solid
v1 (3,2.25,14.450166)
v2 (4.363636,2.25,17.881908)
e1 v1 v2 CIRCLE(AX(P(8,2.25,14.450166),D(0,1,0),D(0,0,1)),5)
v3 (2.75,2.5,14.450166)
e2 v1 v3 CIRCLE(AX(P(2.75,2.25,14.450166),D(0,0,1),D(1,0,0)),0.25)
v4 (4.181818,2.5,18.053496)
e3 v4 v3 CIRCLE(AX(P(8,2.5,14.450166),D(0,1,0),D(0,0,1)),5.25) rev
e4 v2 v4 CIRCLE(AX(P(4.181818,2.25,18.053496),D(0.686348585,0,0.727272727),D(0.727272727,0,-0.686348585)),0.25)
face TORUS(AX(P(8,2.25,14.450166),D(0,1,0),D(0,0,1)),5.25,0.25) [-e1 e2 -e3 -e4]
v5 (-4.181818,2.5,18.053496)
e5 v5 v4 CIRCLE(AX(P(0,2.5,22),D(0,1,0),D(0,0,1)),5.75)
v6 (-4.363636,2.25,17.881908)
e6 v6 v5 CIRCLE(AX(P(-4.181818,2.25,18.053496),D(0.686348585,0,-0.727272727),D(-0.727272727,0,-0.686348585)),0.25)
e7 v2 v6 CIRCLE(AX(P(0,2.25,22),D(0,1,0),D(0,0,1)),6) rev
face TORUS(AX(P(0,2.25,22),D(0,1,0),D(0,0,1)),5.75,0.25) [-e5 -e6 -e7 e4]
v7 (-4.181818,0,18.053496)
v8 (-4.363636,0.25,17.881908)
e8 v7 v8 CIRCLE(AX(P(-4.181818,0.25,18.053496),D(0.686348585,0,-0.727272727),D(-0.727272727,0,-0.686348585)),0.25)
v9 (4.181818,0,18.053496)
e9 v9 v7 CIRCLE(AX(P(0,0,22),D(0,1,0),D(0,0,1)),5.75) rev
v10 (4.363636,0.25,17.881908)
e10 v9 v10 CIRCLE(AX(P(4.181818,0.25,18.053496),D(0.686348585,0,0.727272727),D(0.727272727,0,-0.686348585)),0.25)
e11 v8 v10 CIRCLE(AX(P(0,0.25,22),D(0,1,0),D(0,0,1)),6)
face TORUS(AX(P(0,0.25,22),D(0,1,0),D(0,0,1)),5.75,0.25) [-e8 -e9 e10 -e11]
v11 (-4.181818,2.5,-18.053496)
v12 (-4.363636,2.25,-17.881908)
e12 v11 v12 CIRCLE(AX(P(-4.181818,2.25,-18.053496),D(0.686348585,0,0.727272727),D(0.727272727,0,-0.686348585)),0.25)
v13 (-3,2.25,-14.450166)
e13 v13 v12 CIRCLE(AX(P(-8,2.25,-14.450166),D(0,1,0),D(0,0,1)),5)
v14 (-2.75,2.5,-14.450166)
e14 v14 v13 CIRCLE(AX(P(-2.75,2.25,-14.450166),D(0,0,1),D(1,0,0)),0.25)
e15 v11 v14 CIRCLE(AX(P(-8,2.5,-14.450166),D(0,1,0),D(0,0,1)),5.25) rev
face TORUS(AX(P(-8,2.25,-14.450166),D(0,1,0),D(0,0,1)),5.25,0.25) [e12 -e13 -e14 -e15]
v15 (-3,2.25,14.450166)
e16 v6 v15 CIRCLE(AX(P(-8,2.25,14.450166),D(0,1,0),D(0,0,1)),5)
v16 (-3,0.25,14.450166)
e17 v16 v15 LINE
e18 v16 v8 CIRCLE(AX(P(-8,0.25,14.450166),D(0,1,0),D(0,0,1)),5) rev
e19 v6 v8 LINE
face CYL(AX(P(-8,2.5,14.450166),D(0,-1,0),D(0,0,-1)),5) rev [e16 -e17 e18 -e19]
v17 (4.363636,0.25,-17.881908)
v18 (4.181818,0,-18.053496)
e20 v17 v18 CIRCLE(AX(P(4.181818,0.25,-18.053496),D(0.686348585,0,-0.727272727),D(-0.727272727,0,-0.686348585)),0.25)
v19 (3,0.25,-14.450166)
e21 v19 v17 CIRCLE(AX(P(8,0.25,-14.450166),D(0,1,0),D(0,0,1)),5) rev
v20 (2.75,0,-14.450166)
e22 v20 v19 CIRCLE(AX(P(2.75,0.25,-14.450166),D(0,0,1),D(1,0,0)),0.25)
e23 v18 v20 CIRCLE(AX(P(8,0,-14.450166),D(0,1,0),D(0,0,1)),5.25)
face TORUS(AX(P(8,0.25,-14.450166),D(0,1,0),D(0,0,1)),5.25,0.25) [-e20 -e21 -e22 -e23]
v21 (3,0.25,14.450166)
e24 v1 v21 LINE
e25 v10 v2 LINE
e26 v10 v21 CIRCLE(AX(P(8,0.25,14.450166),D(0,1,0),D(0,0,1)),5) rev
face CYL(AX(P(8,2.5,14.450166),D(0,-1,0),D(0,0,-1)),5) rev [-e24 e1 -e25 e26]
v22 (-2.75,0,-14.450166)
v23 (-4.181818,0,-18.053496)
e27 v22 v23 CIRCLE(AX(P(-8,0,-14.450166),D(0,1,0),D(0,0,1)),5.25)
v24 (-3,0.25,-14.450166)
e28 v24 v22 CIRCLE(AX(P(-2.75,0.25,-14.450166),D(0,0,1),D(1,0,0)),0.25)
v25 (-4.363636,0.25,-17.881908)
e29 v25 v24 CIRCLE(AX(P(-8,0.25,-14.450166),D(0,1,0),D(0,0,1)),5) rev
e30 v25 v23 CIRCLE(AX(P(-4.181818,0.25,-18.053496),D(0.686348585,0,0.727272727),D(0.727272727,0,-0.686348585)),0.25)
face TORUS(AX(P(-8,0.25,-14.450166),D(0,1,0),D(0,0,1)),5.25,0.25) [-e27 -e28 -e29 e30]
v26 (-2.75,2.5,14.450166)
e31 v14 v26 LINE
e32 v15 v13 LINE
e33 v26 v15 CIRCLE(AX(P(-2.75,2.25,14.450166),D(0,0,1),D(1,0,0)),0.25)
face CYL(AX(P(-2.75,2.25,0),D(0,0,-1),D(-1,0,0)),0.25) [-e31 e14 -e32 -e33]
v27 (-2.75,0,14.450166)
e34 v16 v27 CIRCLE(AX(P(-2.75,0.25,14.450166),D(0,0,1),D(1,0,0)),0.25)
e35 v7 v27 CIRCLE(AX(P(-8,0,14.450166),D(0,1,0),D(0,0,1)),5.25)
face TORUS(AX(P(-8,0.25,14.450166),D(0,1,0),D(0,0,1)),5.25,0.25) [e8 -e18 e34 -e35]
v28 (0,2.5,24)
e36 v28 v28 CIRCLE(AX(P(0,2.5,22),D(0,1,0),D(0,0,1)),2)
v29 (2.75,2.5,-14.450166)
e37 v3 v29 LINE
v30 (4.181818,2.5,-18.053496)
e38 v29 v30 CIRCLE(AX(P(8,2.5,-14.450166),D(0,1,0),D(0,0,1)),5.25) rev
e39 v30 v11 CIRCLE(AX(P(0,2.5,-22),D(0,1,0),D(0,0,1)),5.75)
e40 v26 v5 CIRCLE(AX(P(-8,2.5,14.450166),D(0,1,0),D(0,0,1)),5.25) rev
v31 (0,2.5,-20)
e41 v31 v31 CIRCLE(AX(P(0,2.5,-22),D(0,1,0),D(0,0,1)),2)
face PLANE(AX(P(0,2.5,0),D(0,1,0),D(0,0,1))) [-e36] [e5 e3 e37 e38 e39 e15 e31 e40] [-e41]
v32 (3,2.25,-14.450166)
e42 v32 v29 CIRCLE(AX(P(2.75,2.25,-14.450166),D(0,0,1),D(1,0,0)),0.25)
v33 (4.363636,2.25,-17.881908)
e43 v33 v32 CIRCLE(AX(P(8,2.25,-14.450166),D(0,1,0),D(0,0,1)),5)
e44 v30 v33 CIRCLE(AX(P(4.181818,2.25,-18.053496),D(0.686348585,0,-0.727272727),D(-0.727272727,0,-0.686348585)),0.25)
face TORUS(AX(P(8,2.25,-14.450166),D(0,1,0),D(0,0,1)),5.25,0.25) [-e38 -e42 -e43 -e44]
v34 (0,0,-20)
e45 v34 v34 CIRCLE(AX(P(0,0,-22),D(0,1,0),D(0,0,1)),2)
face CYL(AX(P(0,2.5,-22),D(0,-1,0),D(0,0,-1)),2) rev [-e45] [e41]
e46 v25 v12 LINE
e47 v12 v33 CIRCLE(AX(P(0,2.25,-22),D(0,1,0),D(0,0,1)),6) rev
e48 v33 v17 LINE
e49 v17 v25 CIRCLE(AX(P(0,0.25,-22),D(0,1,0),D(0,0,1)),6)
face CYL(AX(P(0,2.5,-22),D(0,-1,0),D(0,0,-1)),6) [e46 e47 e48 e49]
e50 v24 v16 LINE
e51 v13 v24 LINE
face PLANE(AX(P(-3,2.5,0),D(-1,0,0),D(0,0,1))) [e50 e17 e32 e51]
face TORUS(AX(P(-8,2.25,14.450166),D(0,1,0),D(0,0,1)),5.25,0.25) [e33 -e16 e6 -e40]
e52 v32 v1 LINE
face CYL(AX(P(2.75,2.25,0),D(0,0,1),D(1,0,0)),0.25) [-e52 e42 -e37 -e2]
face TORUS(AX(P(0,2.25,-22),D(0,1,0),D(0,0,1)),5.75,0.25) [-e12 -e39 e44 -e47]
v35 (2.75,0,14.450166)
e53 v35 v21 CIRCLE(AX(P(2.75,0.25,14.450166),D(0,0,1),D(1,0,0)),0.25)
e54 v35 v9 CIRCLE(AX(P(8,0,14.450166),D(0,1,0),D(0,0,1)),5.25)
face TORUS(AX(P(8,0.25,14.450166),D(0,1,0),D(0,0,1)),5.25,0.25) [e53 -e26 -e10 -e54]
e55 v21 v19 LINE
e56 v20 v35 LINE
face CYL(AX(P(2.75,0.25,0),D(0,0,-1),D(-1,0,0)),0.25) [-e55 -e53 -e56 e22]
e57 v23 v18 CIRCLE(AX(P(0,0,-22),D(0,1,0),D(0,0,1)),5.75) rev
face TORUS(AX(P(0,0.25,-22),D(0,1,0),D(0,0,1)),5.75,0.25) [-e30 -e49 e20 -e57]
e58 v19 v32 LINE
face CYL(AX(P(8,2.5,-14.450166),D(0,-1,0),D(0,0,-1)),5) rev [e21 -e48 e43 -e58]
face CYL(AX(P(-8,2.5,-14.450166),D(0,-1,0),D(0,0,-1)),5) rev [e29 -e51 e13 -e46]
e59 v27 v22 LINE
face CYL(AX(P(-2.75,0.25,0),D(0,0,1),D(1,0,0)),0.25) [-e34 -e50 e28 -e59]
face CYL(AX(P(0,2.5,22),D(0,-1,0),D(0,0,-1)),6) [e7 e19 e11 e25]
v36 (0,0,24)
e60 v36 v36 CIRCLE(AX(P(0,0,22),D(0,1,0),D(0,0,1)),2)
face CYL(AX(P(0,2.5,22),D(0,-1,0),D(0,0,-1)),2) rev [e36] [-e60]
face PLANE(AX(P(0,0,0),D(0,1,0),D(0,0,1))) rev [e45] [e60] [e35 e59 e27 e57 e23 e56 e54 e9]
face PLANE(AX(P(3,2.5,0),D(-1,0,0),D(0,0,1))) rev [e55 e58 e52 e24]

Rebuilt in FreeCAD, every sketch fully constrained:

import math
import FreeCAD as App
import Part
import Sketcher
from FreeCAD import Vector
Q = App.Units.Quantity


def edges_at(feature, points):
    """Names of the edges that pass closest to the given points."""
    edges = feature.Shape.Edges
    near = lambda p: min(range(len(edges)), key=lambda i: edges[i].distToShape(Part.Vertex(*p))[0])
    return sorted({f"Edge{near(p) + 1}" for p in points})

doc = App.newDocument("Part")
params = doc.addObject("Spreadsheet::Sheet", "Params")
for row, (alias, value) in enumerate([
    ("sketch1_diameter", "4 mm"),
    ("sketch1_radius", "6 mm"),
    ("pad1_length", "2.5 mm"),
    ("fillet_radius", "5 mm"),
    ("fillet2_radius", "0.25 mm"),
], start=1):
    params.set(f"A{row}", alias)
    params.set(f"B{row}", "=" + value)
    params.setAlias(f"B{row}", alias)

body = doc.addObject("PartDesign::Body", "Body")

# Sketch on XZ plane
sketch1 = body.newObject("Sketcher::SketchObject", "Sketch")
sketch1.AttachmentSupport = (doc.getObject("XZ_Plane"), [""])
sketch1.MapMode = "FlatFace"
sketch1.addGeometry(Part.ArcOfCircle(Part.Circle(Vector(0, 22, 0), Vector(0, 0, 1), 6), math.radians(-60), math.radians(240)), False)
sketch1.addGeometry(Part.LineSegment(Vector(3, 16.8, 0), Vector(3, -16.8, 0)), False)
sketch1.addGeometry(Part.ArcOfCircle(Part.Circle(Vector(0, -22, 0), Vector(0, 0, 1), 6), math.radians(120), math.radians(420)), False)
sketch1.addGeometry(Part.LineSegment(Vector(-3, -16.8, 0), Vector(-3, 16.8, 0)), False)
sketch1.addGeometry(Part.Circle(Vector(0, 22, 0), Vector(0, 0, 1), 2), False)
sketch1.addGeometry(Part.Circle(Vector(0, -22, 0), Vector(0, 0, 1), 2), False)
sketch1.addConstraint(Sketcher.Constraint("Coincident", 0, 1, 1, 1))
sketch1.addConstraint(Sketcher.Constraint("Coincident", 1, 2, 2, 2))
sketch1.addConstraint(Sketcher.Constraint("Coincident", 2, 1, 3, 1))
sketch1.addConstraint(Sketcher.Constraint("Coincident", 3, 2, 0, 2))
sketch1.addConstraint(Sketcher.Constraint("Vertical", 1))
sketch1.addConstraint(Sketcher.Constraint("Vertical", 3))
sketch1.addConstraint(Sketcher.Constraint("Coincident", 4, 3, 0, 3))
sketch1.addConstraint(Sketcher.Constraint("Coincident", 5, 3, 2, 3))
sketch1.addConstraint(Sketcher.Constraint("Equal", 0, 2))
sketch1.addConstraint(Sketcher.Constraint("Equal", 4, 5))
sketch1.addConstraint(Sketcher.Constraint("Symmetric", 0, 3, 2, 3, -1, 1))
sketch1.addConstraint(Sketcher.Constraint("Symmetric", 1, 2, 2, 1, -2))
sketch1.addConstraint(Sketcher.Constraint("Diameter", 4, Q("4 mm")))
sketch1.addConstraint(Sketcher.Constraint("Radius", 0, Q("6 mm")))
sketch1.addConstraint(Sketcher.Constraint("DistanceY", -1, 1, 0, 3, Q("22 mm")))
sketch1.addConstraint(Sketcher.Constraint("DistanceX", -1, 1, 0, 1, Q("3 mm")))
sketch1.setExpression("Constraints[12]", "Params.sketch1_diameter")
sketch1.setExpression("Constraints[13]", "Params.sketch1_radius")
pad1 = body.newObject("PartDesign::Pad", "Pad")
pad1.Profile = sketch1
pad1.setExpression("Length", "Params.pad1_length")
pad1.Reversed = True
doc.recompute()

fillet = body.newObject("PartDesign::Fillet", "Fillet")
fillet.Base = (pad1, edges_at(pad1, [
    (-3, 1.25, 16.804),
    (-3, 1.25, -16.804),
    (3, 1.25, -16.804),
    (3, 1.25, 16.804),
]))
fillet.setExpression("Radius", "Params.fillet_radius")
doc.recompute()

fillet2 = body.newObject("PartDesign::Fillet", "Fillet001")
fillet2.Base = (fillet, edges_at(fillet, [
    (0, 0, -28),
    (0, 2.5, -28),
    (3, 0, 0),
    (3, 2.5, 0),
    (0, 0, 28),
    (0, 2.5, 28),
    (-3, 0, 0),
    (-3, 2.5, 0),
    (3.353, 0, -16.297),
    (3.353, 2.5, -16.297),
    (3.353, 0, 16.297),
    (3.353, 2.5, 16.297),
    (-3.353, 0, 16.297),
    (-3.353, 2.5, 16.297),
    (-3.353, 0, -16.297),
    (-3.353, 2.5, -16.297),
]))
fillet2.setExpression("Radius", "Params.fillet2_radius")

doc.recompute()
